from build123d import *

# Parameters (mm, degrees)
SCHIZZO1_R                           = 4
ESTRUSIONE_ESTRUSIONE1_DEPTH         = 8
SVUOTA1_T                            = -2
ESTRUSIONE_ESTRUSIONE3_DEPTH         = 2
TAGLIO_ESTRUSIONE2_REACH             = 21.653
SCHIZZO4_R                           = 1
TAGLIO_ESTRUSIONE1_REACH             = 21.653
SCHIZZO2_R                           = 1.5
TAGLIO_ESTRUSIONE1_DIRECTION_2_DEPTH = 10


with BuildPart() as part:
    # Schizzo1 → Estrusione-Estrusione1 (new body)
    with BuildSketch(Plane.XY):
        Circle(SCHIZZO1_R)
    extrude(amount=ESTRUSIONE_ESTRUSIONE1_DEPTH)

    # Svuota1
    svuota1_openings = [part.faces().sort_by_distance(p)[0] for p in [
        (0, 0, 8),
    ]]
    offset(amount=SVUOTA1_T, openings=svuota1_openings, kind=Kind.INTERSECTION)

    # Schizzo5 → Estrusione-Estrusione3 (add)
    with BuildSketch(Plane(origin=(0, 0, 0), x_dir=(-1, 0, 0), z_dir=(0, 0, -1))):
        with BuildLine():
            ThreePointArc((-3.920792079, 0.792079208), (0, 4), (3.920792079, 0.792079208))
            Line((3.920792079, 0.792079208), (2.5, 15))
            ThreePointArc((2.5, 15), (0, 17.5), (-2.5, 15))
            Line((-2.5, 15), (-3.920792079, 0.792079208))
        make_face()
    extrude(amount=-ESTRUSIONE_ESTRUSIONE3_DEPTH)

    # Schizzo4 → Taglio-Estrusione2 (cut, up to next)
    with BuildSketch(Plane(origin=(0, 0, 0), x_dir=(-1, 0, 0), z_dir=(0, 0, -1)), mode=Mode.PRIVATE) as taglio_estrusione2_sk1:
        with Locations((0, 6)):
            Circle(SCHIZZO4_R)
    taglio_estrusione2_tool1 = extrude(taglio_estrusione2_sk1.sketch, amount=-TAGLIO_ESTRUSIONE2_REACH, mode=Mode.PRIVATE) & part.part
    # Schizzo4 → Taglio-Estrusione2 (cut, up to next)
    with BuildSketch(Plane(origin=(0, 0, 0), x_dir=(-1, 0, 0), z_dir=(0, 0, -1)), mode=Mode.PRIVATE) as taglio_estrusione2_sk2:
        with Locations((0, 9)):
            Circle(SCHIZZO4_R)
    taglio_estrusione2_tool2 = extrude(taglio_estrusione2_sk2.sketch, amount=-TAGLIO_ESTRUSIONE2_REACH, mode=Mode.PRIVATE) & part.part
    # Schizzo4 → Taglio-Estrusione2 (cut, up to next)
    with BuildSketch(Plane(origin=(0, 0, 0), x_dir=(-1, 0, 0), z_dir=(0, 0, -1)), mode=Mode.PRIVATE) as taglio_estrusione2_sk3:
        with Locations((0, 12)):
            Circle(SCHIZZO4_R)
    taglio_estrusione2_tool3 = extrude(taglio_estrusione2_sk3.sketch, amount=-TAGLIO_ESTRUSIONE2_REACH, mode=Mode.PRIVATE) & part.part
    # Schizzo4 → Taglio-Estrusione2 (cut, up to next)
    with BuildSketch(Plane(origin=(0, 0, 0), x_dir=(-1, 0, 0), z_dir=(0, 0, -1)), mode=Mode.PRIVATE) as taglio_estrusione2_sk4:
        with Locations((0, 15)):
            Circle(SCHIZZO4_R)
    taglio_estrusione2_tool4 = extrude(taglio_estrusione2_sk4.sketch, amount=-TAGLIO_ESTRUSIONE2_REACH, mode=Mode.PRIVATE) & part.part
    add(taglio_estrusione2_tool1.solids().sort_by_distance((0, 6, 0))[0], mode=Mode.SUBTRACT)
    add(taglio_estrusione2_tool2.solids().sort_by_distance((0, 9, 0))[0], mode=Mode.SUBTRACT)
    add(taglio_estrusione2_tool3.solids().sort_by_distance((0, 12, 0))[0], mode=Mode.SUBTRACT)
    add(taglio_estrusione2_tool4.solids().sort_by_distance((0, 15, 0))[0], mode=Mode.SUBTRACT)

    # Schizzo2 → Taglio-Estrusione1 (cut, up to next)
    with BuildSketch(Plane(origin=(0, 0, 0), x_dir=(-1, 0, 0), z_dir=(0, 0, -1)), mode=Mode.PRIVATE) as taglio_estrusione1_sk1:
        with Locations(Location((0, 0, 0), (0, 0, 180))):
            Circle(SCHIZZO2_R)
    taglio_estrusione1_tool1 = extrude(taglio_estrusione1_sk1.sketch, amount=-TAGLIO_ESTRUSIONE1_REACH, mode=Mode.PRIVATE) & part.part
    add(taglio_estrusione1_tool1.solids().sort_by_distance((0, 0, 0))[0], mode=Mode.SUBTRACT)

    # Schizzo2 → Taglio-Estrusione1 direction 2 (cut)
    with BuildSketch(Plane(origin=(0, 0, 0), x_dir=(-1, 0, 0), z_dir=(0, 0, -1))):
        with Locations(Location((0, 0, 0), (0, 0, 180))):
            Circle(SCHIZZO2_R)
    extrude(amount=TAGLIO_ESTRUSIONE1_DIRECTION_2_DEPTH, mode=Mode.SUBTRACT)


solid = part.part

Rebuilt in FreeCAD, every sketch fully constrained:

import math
import FreeCAD as App
import Part
import Sketcher

V = App.Vector


def faces_at(feature, points):
    """Names of the faces that lie closest to the given points."""
    faces = feature.Shape.Faces
    near = lambda p: min(range(len(faces)), key=lambda i: faces[i].distToShape(Part.Vertex(*p))[0])
    return sorted({f"Face{near(p) + 1}" for p in points})

doc = App.newDocument("Part")
body = doc.addObject("PartDesign::Body", "Body")

sketch1 = doc.addObject("Sketcher::SketchObject", "Sketch")
body.addObject(sketch1)
sketch1.AttachmentSupport = (doc.XY_Plane, [""])
sketch1.MapMode = "FlatFace"
sketch1.addGeometry(Part.Circle(V(0, 0, 0), V(0, 0, 1), 4), False)
sketch1.addConstraint(Sketcher.Constraint("Coincident", 0, 3, -1, 1))
sketch1.addConstraint(Sketcher.Constraint("Diameter", 0, 8.0))
pad1 = doc.addObject("PartDesign::Pad", "Pad")
body.addObject(pad1)
pad1.Profile = sketch1
pad1.Length = 8
doc.recompute()

thickness = doc.addObject("PartDesign::Thickness", "Thickness")
body.addObject(thickness)
thickness.Base = (pad1, faces_at(pad1, [(0, 0, 8)]))
thickness.Value = 2
thickness.Reversed = True
thickness.Join = "Intersection"

sketch2 = doc.addObject("Sketcher::SketchObject", "Sketch001")
body.addObject(sketch2)
sketch2.AttachmentSupport = (doc.XY_Plane, [""])
sketch2.MapMode = "FlatFace"
sketch2.addGeometry(Part.ArcOfCircle(Part.Circle(V(0, 0, 0), V(0, 0, 1), 4), math.radians(11), math.radians(169)), False)
sketch2.addGeometry(Part.LineSegment(V(-3.9, 0.8, 0), V(-2.5, 15, 0)), False)
sketch2.addGeometry(Part.ArcOfCircle(Part.Circle(V(0, 15, 0), V(0, 0, 1), 2.5), math.radians(0), math.radians(180)), False)
sketch2.addGeometry(Part.LineSegment(V(2.5, 15, 0), V(3.9, 0.8, 0)), False)
sketch2.addConstraint(Sketcher.Constraint("Coincident", 0, 2, 1, 1))
sketch2.addConstraint(Sketcher.Constraint("Coincident", 1, 2, 2, 2))
sketch2.addConstraint(Sketcher.Constraint("Coincident", 2, 1, 3, 1))
sketch2.addConstraint(Sketcher.Constraint("Coincident", 3, 2, 0, 1))
sketch2.addConstraint(Sketcher.Constraint("Coincident", 0, 3, -1, 1))
sketch2.addConstraint(Sketcher.Constraint("Symmetric", 1, 2, 2, 1, -2))
sketch2.addConstraint(Sketcher.Constraint("Horizontal", 2, 3, 1, 2))
sketch2.addConstraint(Sketcher.Constraint("Horizontal", 0, 2, 3, 2))
sketch2.addConstraint(Sketcher.Constraint("Radius", 0, 4.0))
sketch2.addConstraint(Sketcher.Constraint("Radius", 2, 2.5))
sketch2.addConstraint(Sketcher.Constraint("DistanceY", -1, 1, 2, 3, 15.0))
sketch2.addConstraint(Sketcher.Constraint("DistanceY", -1, 1, 0, 2, 0.792079))
pad2 = doc.addObject("PartDesign::Pad", "Pad001")
body.addObject(pad2)
pad2.Profile = sketch2
pad2.Length = 2

sketch3 = doc.addObject("Sketcher::SketchObject", "Sketch002")
body.addObject(sketch3)
sketch3.AttachmentSupport = (doc.XY_Plane, [""])
sketch3.MapMode = "FlatFace"
sketch3.addGeometry(Part.Circle(V(0, 6, 0), V(0, 0, 1), 1), False)
sketch3.addConstraint(Sketcher.Constraint("PointOnObject", 0, 3, -2))
sketch3.addConstraint(Sketcher.Constraint("Diameter", 0, 2.0))
sketch3.addConstraint(Sketcher.Constraint("DistanceY", -1, 1, 0, 3, 6.0))
pocket1 = doc.addObject("PartDesign::Pocket", "Pocket")
body.addObject(pocket1)
pocket1.Profile = sketch3
pocket1.Type = "UpToFirst"
pocket1.Reversed = True

sketch4 = doc.addObject("Sketcher::SketchObject", "Sketch003")
body.addObject(sketch4)
sketch4.AttachmentSupport = (doc.XY_Plane, [""])
sketch4.MapMode = "FlatFace"
sketch4.addGeometry(Part.Circle(V(0, 9, 0), V(0, 0, 1), 1), False)
sketch4.addConstraint(Sketcher.Constraint("PointOnObject", 0, 3, -2))
sketch4.addConstraint(Sketcher.Constraint("Diameter", 0, 2.0))
sketch4.addConstraint(Sketcher.Constraint("DistanceY", -1, 1, 0, 3, 9.0))
pocket2 = doc.addObject("PartDesign::Pocket", "Pocket001")
body.addObject(pocket2)
pocket2.Profile = sketch4
pocket2.Type = "UpToFirst"
pocket2.Reversed = True

sketch5 = doc.addObject("Sketcher::SketchObject", "Sketch004")
body.addObject(sketch5)
sketch5.AttachmentSupport = (doc.XY_Plane, [""])
sketch5.MapMode = "FlatFace"
sketch5.addGeometry(Part.Circle(V(0, 12, 0), V(0, 0, 1), 1), False)
sketch5.addConstraint(Sketcher.Constraint("PointOnObject", 0, 3, -2))
sketch5.addConstraint(Sketcher.Constraint("Diameter", 0, 2.0))
sketch5.addConstraint(Sketcher.Constraint("DistanceY", -1, 1, 0, 3, 12.0))
pocket3 = doc.addObject("PartDesign::Pocket", "Pocket002")
body.addObject(pocket3)
pocket3.Profile = sketch5
pocket3.Type = "UpToFirst"
pocket3.Reversed = True

sketch6 = doc.addObject("Sketcher::SketchObject", "Sketch005")
body.addObject(sketch6)
sketch6.AttachmentSupport = (doc.XY_Plane, [""])
sketch6.MapMode = "FlatFace"
sketch6.addGeometry(Part.Circle(V(0, 15, 0), V(0, 0, 1), 1), False)
sketch6.addConstraint(Sketcher.Constraint("PointOnObject", 0, 3, -2))
sketch6.addConstraint(Sketcher.Constraint("Diameter", 0, 2.0))
sketch6.addConstraint(Sketcher.Constraint("DistanceY", -1, 1, 0, 3, 15.0))
pocket4 = doc.addObject("PartDesign::Pocket", "Pocket003")
body.addObject(pocket4)
pocket4.Profile = sketch6
pocket4.Type = "UpToFirst"
pocket4.Reversed = True

sketch7 = doc.addObject("Sketcher::SketchObject", "Sketch006")
body.addObject(sketch7)
sketch7.AttachmentSupport = (doc.XY_Plane, [""])
sketch7.MapMode = "FlatFace"
sketch7.addGeometry(Part.Circle(V(0, 0, 0), V(0, 0, 1), 1.5), False)
sketch7.addConstraint(Sketcher.Constraint("Coincident", 0, 3, -1, 1))
sketch7.addConstraint(Sketcher.Constraint("Diameter", 0, 3.0))
pocket5 = doc.addObject("PartDesign::Pocket", "Pocket004")
body.addObject(pocket5)
pocket5.Profile = sketch7
pocket5.Type = "UpToFirst"
pocket5.Reversed = True

sketch8 = doc.addObject("Sketcher::SketchObject", "Sketch007")
body.addObject(sketch8)
sketch8.AttachmentSupport = (doc.XY_Plane, [""])
sketch8.MapMode = "FlatFace"
sketch8.addGeometry(Part.Circle(V(0, 0, 0), V(0, 0, 1), 1.5), False)
sketch8.addConstraint(Sketcher.Constraint("Coincident", 0, 3, -1, 1))
sketch8.addConstraint(Sketcher.Constraint("Diameter", 0, 3.0))
pocket6 = doc.addObject("PartDesign::Pocket", "Pocket005")
body.addObject(pocket6)
pocket6.Profile = sketch8
pocket6.Length = 10

doc.recompute()
